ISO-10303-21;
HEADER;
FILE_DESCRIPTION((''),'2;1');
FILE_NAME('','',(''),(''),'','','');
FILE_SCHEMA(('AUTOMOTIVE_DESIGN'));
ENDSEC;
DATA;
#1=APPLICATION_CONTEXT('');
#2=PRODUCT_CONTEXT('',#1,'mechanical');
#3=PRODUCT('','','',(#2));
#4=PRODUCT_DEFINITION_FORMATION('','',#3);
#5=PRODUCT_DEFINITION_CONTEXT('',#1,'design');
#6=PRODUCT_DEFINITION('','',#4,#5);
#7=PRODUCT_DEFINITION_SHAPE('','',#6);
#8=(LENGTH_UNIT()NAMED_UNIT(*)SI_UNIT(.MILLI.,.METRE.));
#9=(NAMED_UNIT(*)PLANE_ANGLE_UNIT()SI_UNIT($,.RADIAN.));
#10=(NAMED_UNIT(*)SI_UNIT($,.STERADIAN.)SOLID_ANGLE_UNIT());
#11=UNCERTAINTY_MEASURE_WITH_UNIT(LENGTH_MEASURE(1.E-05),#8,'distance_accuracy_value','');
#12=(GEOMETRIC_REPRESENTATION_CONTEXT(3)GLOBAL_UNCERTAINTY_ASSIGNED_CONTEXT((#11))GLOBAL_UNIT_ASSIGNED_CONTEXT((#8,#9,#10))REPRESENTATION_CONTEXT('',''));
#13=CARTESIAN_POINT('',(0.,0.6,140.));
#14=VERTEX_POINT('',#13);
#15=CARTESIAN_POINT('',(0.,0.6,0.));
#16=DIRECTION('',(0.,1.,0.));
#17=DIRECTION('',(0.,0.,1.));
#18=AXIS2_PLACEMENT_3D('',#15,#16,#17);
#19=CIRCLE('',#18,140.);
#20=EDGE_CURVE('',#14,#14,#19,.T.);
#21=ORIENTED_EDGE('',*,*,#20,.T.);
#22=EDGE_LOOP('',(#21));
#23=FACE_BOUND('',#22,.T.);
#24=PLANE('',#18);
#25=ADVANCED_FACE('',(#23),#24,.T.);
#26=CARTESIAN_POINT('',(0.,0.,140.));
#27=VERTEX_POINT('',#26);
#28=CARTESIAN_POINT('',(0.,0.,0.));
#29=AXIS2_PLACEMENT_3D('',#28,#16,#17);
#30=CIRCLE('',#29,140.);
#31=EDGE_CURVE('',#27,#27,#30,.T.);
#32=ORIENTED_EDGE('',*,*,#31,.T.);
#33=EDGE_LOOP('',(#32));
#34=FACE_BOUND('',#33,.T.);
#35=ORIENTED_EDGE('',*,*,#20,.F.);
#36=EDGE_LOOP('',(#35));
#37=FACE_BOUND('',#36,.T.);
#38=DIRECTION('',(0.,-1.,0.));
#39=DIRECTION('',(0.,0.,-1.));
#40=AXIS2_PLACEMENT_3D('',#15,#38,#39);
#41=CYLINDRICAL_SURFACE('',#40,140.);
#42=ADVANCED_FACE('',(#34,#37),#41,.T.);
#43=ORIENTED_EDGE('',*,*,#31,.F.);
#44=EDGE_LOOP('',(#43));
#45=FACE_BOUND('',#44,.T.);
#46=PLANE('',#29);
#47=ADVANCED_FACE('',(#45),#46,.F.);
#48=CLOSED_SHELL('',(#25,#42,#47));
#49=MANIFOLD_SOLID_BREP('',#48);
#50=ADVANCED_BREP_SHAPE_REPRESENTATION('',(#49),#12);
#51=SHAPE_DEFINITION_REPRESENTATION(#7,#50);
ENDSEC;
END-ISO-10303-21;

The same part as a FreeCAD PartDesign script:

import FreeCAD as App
import Part
import Sketcher

doc = App.newDocument("Part")
params = doc.addObject("Spreadsheet::Sheet", "Params")
for row, (alias, value) in enumerate([
    ("sketch1_diameter", "280 mm"),
    ("pad1_length", "0.6 mm"),
], start=1):
    params.set(f"A{row}", alias)
    params.set(f"B{row}", "=" + value)
    params.setAlias(f"B{row}", alias)

body = doc.addObject("PartDesign::Body", "Body")

# Sketch on XZ plane
sketch1 = body.newObject("Sketcher::SketchObject", "Sketch")
sketch1.AttachmentSupport = (doc.getObject("XZ_Plane"), [""])
sketch1.MapMode = "FlatFace"
sketch1.addGeometry(Part.Circle(App.Vector(0, 0, 0), App.Vector(0, 0, 1), 140), False)
sketch1.addConstraint([
    Sketcher.Constraint("Coincident", 0, 3, -1, 1),
    Sketcher.Constraint("Diameter", 0, 280.0),
])
sketch1.setExpression("Constraints[1]", "Params.sketch1_diameter")
pad1 = body.newObject("PartDesign::Pad", "Pad")
pad1.Profile = sketch1
pad1.setExpression("Length", "Params.pad1_length")
pad1.Reversed = True

doc.recompute()
